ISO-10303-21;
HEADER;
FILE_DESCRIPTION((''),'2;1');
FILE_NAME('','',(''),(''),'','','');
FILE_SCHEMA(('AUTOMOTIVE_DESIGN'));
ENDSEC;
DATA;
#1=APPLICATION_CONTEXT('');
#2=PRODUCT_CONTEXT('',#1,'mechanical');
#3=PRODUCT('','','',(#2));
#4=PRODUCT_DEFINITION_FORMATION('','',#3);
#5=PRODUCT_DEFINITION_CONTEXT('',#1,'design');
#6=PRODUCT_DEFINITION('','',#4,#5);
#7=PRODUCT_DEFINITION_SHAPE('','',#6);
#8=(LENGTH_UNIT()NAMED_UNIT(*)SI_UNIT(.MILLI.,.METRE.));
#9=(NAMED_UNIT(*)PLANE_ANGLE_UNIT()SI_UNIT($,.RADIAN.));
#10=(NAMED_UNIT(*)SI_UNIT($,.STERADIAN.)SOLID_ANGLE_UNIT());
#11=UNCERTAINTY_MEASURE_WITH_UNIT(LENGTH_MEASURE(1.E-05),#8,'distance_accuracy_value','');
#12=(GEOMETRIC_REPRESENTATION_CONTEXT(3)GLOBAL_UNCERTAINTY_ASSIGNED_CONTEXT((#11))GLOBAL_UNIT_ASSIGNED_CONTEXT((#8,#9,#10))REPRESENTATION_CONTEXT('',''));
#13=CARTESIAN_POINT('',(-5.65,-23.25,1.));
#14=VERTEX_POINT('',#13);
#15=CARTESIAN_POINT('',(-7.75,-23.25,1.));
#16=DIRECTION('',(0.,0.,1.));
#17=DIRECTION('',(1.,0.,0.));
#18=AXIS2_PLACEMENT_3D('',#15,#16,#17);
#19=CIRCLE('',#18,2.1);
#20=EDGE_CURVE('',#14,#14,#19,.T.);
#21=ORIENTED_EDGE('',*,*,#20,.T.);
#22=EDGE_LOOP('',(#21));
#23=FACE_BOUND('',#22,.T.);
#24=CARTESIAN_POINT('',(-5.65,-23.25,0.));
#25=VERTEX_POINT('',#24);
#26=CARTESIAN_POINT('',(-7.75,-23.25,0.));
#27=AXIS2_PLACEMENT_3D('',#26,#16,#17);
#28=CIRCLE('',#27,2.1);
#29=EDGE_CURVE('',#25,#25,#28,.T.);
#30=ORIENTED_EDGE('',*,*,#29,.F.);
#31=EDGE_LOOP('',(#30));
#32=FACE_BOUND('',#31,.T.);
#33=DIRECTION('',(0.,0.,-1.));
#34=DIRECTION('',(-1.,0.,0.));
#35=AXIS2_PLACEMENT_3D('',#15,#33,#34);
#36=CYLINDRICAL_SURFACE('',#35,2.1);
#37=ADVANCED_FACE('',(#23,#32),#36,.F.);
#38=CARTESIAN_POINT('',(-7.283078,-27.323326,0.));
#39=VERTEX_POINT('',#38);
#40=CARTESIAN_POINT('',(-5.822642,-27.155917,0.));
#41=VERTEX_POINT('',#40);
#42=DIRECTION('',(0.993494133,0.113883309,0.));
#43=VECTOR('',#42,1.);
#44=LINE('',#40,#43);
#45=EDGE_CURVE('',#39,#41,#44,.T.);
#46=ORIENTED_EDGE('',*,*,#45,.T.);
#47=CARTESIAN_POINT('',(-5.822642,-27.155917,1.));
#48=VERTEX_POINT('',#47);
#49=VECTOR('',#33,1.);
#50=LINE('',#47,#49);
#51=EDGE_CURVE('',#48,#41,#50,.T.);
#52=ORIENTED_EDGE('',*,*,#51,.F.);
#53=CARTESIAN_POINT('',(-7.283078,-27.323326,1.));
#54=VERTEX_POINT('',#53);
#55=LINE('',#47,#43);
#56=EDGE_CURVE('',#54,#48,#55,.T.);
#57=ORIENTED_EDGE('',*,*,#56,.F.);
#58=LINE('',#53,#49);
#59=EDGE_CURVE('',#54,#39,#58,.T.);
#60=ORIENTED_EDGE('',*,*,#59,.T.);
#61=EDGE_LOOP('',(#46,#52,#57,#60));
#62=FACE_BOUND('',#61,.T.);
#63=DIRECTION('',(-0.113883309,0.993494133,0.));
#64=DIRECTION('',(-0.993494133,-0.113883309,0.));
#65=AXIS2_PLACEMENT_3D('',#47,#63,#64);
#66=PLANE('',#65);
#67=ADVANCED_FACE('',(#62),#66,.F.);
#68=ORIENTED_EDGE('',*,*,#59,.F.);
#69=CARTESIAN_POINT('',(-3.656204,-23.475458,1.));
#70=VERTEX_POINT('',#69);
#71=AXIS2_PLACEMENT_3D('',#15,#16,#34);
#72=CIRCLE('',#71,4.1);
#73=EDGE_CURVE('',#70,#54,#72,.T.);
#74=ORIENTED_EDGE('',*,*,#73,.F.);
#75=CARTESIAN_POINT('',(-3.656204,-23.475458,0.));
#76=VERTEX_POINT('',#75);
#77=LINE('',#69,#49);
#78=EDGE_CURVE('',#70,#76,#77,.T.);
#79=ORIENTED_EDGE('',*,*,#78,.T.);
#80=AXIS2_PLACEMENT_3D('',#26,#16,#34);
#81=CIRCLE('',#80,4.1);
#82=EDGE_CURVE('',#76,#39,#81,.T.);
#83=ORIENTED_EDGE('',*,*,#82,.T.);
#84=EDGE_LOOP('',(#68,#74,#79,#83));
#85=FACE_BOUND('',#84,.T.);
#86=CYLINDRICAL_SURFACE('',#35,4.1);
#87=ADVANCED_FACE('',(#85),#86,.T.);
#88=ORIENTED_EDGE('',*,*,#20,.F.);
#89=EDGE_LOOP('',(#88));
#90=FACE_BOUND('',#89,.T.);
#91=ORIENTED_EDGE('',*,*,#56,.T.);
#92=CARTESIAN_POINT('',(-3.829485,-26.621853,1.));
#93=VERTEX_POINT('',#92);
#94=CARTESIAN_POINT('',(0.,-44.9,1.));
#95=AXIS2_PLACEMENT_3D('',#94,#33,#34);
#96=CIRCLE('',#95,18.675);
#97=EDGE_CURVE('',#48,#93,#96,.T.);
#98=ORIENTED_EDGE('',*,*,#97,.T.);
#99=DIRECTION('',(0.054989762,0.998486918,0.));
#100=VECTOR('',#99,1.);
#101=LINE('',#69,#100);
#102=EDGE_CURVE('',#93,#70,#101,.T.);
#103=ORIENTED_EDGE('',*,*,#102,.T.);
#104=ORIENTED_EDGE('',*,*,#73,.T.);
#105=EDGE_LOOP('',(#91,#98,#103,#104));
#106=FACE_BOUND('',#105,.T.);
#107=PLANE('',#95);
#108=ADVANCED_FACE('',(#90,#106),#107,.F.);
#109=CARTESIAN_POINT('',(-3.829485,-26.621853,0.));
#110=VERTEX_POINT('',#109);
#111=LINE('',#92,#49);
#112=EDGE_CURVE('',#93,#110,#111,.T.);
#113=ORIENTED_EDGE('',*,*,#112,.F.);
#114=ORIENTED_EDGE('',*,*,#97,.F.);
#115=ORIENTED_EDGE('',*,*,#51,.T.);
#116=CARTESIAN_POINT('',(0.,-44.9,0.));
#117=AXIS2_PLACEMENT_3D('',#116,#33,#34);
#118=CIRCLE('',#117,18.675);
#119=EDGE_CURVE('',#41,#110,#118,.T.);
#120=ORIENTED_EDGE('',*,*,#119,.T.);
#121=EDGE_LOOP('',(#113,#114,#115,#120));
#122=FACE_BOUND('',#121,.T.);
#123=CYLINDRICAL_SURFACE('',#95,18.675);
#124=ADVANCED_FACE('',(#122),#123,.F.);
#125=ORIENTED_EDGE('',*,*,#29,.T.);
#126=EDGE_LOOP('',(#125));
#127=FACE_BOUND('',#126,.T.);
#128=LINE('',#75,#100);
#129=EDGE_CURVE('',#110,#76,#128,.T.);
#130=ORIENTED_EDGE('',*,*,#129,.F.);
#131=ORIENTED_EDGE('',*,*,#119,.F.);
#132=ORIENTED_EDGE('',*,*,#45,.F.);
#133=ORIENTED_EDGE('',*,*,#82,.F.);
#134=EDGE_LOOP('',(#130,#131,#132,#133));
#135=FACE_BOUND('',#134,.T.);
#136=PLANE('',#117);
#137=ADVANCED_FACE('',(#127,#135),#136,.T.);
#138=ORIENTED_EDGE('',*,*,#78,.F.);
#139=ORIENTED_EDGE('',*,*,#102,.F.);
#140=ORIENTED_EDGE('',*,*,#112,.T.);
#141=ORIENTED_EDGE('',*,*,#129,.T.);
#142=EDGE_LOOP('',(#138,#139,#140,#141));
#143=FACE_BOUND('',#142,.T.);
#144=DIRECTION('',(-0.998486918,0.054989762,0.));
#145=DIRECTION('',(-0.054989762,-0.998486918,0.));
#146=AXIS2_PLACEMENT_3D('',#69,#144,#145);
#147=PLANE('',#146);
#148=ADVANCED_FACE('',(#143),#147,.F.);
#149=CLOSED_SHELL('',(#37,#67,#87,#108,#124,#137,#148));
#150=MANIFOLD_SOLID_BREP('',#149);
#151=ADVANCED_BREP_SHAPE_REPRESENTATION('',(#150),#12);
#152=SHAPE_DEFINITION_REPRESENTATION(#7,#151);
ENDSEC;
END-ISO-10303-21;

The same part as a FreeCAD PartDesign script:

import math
import FreeCAD as App
import Part
import Sketcher
from FreeCAD import Vector
Q = App.Units.Quantity

doc = App.newDocument("Part")
params = doc.addObject("Spreadsheet::Sheet", "Params")
for row, (alias, value) in enumerate([
    ("sketch1_diameter", "4.2 mm"),
    ("sketch1_radius", "4.1 mm"),
    ("sketch1_length", "1.47 mm"),
    ("pad1_length", "1 mm"),
], start=1):
    params.set(f"A{row}", alias)
    params.set(f"B{row}", "=" + value)
    params.setAlias(f"B{row}", alias)

body = doc.addObject("PartDesign::Body", "Body")

sketch1 = body.newObject("Sketcher::SketchObject", "Sketch")
sketch1.AttachmentSupport = (doc.getObject("XY_Plane"), [""])
sketch1.MapMode = "FlatFace"
sketch1.addGeometry(Part.LineSegment(Vector(-7.283078, -27.323326, 0), Vector(-5.822642, -27.155917, 0)), False)
sketch1.addGeometry(Part.ArcOfCircle(Part.Circle(Vector(0, -44.9, 0), Vector(0, 0, 1), 18.675), math.radians(101.83298), math.radians(108.16702)), False)
sketch1.addGeometry(Part.LineSegment(Vector(-3.829485, -26.621853, 0), Vector(-3.656204, -23.475458, 0)), False)
sketch1.addGeometry(Part.ArcOfCircle(Part.Circle(Vector(-7.75, -23.25, 0), Vector(0, 0, 1), 4.1), math.radians(-3.152271), math.radians(276.53922)), False)
sketch1.addGeometry(Part.Circle(Vector(-7.75, -23.25, 0), Vector(0, 0, 1), 2.1), False)
sketch1.addConstraint(Sketcher.Constraint("Coincident", 0, 2, 1, 2))
sketch1.addConstraint(Sketcher.Constraint("Coincident", 1, 1, 2, 1))
sketch1.addConstraint(Sketcher.Constraint("Tangent", 2, 2, 3, 1))
sketch1.addConstraint(Sketcher.Constraint("Tangent", 3, 2, 0, 1))
sketch1.addConstraint(Sketcher.Constraint("Coincident", 4, 3, 3, 3))
sketch1.addConstraint(Sketcher.Constraint("PointOnObject", 1, 3, -2))
sketch1.addConstraint(Sketcher.Constraint("Diameter", 4, Q("4.2 mm")))
sketch1.addConstraint(Sketcher.Constraint("Radius", 3, Q("4.1 mm")))
sketch1.addConstraint(Sketcher.Constraint("Radius", 1, Q("18.675 mm")))
sketch1.addConstraint(Sketcher.Constraint("DistanceY", 1, 3, -1, 1, Q("44.9 mm")))
sketch1.addConstraint(Sketcher.Constraint("Distance", 0, Q("1.47 mm")))
sketch1.addConstraint(Sketcher.Constraint("DistanceX", 3, 3, -1, 1, Q("7.75 mm")))
sketch1.addConstraint(Sketcher.Constraint("DistanceY", 3, 3, -1, 1, Q("23.25 mm")))
sketch1.addConstraint(Sketcher.Constraint("DistanceY", 2, 2, -1, 1, Q("23.475458 mm")))
sketch1.setExpression("Constraints[6]", "Params.sketch1_diameter")
sketch1.setExpression("Constraints[7]", "Params.sketch1_radius")
sketch1.setExpression("Constraints[10]", "Params.sketch1_length")
pad1 = body.newObject("PartDesign::Pad", "Pad")
pad1.Profile = sketch1
pad1.setExpression("Length", "Params.pad1_length")

doc.recompute()
